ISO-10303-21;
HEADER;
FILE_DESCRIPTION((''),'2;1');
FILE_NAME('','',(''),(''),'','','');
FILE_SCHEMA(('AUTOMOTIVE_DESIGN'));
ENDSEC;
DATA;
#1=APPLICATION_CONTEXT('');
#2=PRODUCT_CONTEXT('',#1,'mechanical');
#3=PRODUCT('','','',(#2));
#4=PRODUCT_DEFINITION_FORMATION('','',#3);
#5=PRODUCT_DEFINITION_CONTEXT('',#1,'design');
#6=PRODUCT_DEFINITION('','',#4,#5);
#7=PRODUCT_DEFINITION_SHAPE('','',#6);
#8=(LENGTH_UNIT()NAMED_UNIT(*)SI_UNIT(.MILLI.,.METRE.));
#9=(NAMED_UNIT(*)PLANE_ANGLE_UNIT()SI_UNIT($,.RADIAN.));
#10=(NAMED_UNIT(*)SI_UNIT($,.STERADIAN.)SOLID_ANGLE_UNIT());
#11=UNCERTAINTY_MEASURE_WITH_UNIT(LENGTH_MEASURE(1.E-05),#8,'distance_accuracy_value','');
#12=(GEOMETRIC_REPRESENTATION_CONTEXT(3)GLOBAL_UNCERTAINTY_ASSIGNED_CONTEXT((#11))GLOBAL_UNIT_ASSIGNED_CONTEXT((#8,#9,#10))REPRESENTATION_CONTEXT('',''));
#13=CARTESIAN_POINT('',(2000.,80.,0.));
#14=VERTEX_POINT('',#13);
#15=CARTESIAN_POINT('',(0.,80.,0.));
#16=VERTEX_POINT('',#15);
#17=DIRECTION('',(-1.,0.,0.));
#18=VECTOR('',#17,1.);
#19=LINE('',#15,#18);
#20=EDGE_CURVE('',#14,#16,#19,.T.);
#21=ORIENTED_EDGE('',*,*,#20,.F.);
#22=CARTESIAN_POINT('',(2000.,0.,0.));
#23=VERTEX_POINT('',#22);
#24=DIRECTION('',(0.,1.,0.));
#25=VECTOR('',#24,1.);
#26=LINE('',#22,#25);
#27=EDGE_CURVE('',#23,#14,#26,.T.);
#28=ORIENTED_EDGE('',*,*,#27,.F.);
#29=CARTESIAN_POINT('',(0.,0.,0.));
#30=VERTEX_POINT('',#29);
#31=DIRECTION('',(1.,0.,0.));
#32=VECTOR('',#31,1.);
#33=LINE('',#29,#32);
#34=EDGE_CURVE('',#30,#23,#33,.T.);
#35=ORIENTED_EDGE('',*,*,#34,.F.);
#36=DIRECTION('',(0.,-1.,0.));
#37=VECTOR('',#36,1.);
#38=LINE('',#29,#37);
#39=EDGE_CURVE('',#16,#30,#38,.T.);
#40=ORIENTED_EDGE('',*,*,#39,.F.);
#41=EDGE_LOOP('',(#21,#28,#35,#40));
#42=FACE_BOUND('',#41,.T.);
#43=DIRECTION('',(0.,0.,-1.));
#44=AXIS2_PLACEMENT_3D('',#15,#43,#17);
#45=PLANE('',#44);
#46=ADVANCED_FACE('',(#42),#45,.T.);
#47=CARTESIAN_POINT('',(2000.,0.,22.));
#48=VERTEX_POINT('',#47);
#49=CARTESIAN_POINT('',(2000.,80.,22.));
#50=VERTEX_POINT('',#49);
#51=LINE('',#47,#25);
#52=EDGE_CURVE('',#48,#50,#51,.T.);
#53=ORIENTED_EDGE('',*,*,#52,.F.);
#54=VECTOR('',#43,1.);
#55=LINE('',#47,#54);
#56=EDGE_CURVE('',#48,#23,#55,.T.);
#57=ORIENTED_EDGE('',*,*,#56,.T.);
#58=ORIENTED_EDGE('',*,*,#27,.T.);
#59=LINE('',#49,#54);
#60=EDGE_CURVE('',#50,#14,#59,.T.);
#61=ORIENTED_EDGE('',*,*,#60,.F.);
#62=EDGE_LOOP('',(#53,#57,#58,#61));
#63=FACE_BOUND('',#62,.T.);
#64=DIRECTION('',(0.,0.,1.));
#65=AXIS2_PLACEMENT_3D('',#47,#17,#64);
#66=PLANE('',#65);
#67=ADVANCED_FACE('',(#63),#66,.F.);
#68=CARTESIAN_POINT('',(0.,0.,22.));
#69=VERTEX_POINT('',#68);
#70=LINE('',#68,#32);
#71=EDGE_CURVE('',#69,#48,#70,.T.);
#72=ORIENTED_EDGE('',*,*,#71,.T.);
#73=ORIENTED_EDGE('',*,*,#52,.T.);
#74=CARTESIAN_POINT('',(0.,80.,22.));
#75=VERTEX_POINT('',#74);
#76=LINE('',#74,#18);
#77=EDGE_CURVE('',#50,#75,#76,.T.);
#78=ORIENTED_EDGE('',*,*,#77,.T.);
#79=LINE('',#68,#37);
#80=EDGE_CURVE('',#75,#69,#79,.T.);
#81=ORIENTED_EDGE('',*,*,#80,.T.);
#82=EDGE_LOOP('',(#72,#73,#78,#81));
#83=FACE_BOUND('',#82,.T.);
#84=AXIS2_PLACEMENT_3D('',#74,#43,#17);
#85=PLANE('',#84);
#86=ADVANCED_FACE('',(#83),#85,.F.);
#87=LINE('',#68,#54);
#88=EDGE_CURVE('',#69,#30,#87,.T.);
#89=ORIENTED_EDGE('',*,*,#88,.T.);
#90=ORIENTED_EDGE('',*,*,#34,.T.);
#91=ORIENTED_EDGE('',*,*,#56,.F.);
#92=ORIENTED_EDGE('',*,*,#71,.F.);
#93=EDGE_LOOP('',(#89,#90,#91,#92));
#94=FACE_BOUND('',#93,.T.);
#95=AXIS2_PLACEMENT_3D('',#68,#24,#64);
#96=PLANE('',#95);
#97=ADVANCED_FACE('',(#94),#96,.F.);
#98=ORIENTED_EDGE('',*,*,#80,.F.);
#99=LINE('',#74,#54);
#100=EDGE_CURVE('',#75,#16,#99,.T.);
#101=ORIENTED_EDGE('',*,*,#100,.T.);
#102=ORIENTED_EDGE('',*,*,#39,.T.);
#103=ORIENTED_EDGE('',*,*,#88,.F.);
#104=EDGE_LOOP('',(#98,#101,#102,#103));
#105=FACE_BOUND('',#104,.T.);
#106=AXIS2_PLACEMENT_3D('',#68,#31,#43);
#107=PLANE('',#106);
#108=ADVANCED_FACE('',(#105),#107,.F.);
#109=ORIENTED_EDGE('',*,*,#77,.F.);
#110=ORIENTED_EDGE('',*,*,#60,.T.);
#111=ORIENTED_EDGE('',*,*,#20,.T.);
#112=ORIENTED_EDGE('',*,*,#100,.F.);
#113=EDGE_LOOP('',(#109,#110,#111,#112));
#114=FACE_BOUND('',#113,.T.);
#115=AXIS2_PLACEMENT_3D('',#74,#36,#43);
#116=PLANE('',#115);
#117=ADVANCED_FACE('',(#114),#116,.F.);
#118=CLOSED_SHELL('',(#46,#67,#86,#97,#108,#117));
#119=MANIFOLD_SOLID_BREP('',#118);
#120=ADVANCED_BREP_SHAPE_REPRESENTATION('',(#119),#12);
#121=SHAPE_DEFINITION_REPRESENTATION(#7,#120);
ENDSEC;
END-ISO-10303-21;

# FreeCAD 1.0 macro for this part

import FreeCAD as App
import Part
import Sketcher
Q = App.Units.Quantity


def add_polygon(sketch, points):
    """Adds a closed chain of lines whose ends are joined by coincident constraints."""
    first, n = sketch.GeometryCount, len(points)
    for a, b in zip(points, points[1:] + points[:1]):
        sketch.addGeometry(Part.LineSegment(App.Vector(*a, 0), App.Vector(*b, 0)), False)
    for i in range(n):
        sketch.addConstraint(Sketcher.Constraint("Coincident", first + i, 2, first + (i + 1) % n, 1))

doc = App.newDocument("Part")
params = doc.addObject("Spreadsheet::Sheet", "Params")
for row, (alias, value) in enumerate([
    ("sketch1_width", "2000 mm"),
    ("sketch1_height", "80 mm"),
    ("pad1_length", "22 mm"),
], start=1):
    params.set(f"A{row}", alias)
    params.set(f"B{row}", "=" + value)
    params.setAlias(f"B{row}", alias)

body = doc.addObject("PartDesign::Body", "Body")

sketch1 = body.newObject("Sketcher::SketchObject", "Sketch")
sketch1.AttachmentSupport = (doc.getObject("XY_Plane"), [""])
sketch1.MapMode = "FlatFace"
add_polygon(sketch1, [(0, 80), (0, 0), (2000, 0), (2000, 80)])
sketch1.addConstraint(Sketcher.Constraint("Vertical", 0))
sketch1.addConstraint(Sketcher.Constraint("Horizontal", 1))
sketch1.addConstraint(Sketcher.Constraint("Vertical", 2))
sketch1.addConstraint(Sketcher.Constraint("Horizontal", 3))
sketch1.addConstraint(Sketcher.Constraint("Coincident", 0, 2, -1, 1))
sketch1.addConstraint(Sketcher.Constraint("DistanceX", 1, 1, 1, 2, Q("2000 mm")))
sketch1.addConstraint(Sketcher.Constraint("DistanceY", 0, 2, 0, 1, Q("80 mm")))
sketch1.setExpression("Constraints[9]", "Params.sketch1_width")
sketch1.setExpression("Constraints[10]", "Params.sketch1_height")
pad1 = body.newObject("PartDesign::Pad", "Pad")
pad1.Profile = sketch1
pad1.setExpression("Length", "Params.pad1_length")

doc.recompute()
